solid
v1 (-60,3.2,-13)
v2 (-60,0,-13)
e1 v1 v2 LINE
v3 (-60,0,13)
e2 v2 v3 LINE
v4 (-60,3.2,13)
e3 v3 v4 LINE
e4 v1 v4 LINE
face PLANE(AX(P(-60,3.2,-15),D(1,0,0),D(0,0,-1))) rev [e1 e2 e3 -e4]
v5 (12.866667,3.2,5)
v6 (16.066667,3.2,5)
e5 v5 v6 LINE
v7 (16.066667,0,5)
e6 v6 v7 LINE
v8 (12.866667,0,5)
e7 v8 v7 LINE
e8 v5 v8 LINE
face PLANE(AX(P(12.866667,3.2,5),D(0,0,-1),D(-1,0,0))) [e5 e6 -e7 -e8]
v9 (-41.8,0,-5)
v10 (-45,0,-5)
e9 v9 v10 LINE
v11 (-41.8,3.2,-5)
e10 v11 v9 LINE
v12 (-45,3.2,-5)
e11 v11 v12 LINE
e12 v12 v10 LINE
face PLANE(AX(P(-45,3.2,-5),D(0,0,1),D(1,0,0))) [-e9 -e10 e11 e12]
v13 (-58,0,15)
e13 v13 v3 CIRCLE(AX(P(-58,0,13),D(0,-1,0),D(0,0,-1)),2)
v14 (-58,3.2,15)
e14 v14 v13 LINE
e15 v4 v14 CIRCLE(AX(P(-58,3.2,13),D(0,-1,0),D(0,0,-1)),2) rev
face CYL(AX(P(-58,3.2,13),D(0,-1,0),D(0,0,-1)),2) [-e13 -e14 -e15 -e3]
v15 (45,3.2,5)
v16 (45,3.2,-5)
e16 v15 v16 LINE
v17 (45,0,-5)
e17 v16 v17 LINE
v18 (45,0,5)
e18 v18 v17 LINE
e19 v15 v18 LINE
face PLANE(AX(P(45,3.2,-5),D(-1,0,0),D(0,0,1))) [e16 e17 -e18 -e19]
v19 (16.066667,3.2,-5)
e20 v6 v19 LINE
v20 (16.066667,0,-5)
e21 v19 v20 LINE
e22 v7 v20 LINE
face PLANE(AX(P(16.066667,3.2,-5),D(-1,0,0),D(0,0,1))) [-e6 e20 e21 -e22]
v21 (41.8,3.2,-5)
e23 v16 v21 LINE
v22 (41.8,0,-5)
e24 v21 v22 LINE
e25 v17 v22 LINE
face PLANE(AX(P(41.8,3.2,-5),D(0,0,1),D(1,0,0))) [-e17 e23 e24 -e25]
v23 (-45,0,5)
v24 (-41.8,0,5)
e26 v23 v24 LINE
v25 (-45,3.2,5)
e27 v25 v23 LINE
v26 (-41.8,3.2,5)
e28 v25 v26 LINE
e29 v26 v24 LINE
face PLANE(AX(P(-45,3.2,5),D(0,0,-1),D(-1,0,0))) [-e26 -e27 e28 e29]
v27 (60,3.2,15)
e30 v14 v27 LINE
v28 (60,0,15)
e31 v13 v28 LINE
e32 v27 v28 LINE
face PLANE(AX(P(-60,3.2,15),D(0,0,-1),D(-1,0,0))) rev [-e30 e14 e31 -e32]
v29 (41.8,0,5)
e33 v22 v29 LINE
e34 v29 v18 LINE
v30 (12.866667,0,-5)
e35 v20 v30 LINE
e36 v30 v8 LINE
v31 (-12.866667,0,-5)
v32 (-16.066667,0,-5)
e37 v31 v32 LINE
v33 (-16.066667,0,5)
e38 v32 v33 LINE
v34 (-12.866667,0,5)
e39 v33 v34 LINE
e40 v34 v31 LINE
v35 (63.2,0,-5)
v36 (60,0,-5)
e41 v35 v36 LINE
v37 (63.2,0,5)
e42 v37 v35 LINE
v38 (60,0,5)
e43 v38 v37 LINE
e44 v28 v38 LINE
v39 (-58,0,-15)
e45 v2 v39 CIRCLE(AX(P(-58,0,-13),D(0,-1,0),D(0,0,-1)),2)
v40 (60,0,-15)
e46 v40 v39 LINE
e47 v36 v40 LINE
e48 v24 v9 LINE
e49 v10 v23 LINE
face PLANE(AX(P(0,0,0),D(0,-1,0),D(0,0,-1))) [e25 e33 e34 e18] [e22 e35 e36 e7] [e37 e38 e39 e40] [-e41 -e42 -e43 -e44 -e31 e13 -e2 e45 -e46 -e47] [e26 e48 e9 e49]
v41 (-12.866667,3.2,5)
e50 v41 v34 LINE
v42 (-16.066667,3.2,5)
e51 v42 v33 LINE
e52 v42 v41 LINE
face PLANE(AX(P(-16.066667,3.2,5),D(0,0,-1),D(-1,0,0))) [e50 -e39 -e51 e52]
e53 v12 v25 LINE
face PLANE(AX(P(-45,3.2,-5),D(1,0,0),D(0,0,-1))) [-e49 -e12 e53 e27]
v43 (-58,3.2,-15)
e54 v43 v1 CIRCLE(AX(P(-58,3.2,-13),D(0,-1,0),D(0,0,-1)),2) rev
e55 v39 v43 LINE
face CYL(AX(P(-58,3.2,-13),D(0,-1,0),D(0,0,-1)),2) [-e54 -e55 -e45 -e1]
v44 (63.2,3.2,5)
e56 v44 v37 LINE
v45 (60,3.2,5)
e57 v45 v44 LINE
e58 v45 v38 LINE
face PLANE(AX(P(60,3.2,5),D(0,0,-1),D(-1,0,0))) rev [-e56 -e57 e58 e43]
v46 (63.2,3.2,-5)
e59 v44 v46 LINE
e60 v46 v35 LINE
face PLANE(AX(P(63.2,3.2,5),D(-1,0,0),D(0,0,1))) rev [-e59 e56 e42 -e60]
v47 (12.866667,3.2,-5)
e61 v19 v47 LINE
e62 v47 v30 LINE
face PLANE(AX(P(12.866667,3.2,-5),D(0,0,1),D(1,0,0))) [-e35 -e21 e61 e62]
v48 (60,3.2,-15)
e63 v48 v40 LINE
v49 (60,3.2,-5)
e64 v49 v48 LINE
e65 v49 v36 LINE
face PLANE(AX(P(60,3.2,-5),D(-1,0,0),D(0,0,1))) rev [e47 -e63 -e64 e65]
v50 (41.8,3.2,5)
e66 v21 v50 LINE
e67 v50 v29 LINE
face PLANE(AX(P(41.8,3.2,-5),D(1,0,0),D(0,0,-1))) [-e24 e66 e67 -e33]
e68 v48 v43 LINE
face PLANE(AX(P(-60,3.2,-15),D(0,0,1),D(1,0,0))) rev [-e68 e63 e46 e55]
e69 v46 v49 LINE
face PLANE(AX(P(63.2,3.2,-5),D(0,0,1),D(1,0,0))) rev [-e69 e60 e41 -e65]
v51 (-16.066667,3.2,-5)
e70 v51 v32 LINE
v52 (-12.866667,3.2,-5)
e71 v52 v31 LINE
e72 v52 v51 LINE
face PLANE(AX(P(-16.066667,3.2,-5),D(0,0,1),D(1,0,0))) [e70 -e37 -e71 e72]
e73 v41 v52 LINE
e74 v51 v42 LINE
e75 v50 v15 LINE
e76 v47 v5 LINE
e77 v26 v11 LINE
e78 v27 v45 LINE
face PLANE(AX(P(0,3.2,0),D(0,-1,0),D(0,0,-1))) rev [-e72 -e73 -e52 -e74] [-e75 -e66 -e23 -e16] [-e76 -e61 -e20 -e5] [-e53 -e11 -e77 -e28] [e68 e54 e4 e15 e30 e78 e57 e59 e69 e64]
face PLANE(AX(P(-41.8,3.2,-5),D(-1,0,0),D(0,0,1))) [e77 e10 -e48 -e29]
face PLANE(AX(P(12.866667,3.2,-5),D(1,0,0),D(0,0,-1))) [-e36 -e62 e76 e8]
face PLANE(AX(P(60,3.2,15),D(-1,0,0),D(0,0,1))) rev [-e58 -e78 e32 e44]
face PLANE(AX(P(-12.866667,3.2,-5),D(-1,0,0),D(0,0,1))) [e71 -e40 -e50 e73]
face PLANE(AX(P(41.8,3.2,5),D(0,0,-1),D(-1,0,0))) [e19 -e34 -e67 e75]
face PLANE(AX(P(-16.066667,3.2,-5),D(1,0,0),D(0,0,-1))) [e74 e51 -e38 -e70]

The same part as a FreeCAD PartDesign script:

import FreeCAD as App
import Part
import Sketcher
Q = App.Units.Quantity


def edges_at(feature, points):
    """Names of the edges that pass closest to the given points."""
    edges = feature.Shape.Edges
    near = lambda p: min(range(len(edges)), key=lambda i: edges[i].distToShape(Part.Vertex(*p))[0])
    return sorted({f"Edge{near(p) + 1}" for p in points})

doc = App.newDocument("Part")
params = doc.addObject("Spreadsheet::Sheet", "Params")
for row, (alias, value) in enumerate([
    ("sketch1_width", "120 mm"),
    ("sketch1_height", "30 mm"),
    ("sketch1_width2", "3.2 mm"),
    ("pad1_length", "3.2 mm"),
    ("fillet_radius", "2 mm"),
], start=1):
    params.set(f"A{row}", alias)
    params.set(f"B{row}", "=" + value)
    params.setAlias(f"B{row}", alias)

body = doc.addObject("PartDesign::Body", "Body")

# Sketch on XZ plane
sketch1 = doc.addObject("Sketcher::SketchObject", "Sketch")
body.addObject(sketch1)
sketch1.AttachmentSupport = (doc.XZ_Plane, [""])
sketch1.MapMode = "FlatFace"
sketch1.addGeometry([
    Part.LineSegment(App.Vector(60, -15, 0), App.Vector(-60, -15, 0)),  # 0
    Part.LineSegment(App.Vector(-60, -15, 0), App.Vector(-60, 15, 0)),  # 1
    Part.LineSegment(App.Vector(-60, 15, 0), App.Vector(60, 15, 0)),  # 2
    Part.LineSegment(App.Vector(60, 15, 0), App.Vector(60, 5, 0)),  # 3
    Part.LineSegment(App.Vector(60, 5, 0), App.Vector(63.2, 5, 0)),  # 4
    Part.LineSegment(App.Vector(63.2, 5, 0), App.Vector(63.2, -5, 0)),  # 5
    Part.LineSegment(App.Vector(63.2, -5, 0), App.Vector(60, -5, 0)),  # 6
    Part.LineSegment(App.Vector(60, -5, 0), App.Vector(60, -15, 0)),  # 7
    Part.LineSegment(App.Vector(41.8, 5, 0), App.Vector(41.8, -5, 0)),  # 8
    Part.LineSegment(App.Vector(41.8, -5, 0), App.Vector(45, -5, 0)),  # 9
    Part.LineSegment(App.Vector(45, -5, 0), App.Vector(45, 5, 0)),  # 10
    Part.LineSegment(App.Vector(45, 5, 0), App.Vector(41.8, 5, 0)),  # 11
    Part.LineSegment(App.Vector(12.866667, 5, 0), App.Vector(12.866667, -5, 0)),  # 12
    Part.LineSegment(App.Vector(12.866667, -5, 0), App.Vector(16.066667, -5, 0)),  # 13
    Part.LineSegment(App.Vector(16.066667, -5, 0), App.Vector(16.066667, 5, 0)),  # 14
    Part.LineSegment(App.Vector(16.066667, 5, 0), App.Vector(12.866667, 5, 0)),  # 15
    Part.LineSegment(App.Vector(-16.066667, 5, 0), App.Vector(-16.066667, -5, 0)),  # 16
    Part.LineSegment(App.Vector(-16.066667, -5, 0), App.Vector(-12.866667, -5, 0)),  # 17
    Part.LineSegment(App.Vector(-12.866667, -5, 0), App.Vector(-12.866667, 5, 0)),  # 18
    Part.LineSegment(App.Vector(-12.866667, 5, 0), App.Vector(-16.066667, 5, 0)),  # 19
    Part.LineSegment(App.Vector(-45, 5, 0), App.Vector(-45, -5, 0)),  # 20
    Part.LineSegment(App.Vector(-45, -5, 0), App.Vector(-41.8, -5, 0)),  # 21
    Part.LineSegment(App.Vector(-41.8, -5, 0), App.Vector(-41.8, 5, 0)),  # 22
    Part.LineSegment(App.Vector(-41.8, 5, 0), App.Vector(-45, 5, 0)),  # 23
], False)
sketch1.addConstraint([
    Sketcher.Constraint("Coincident", 0, 2, 1, 1),
    Sketcher.Constraint("Coincident", 1, 2, 2, 1),
    Sketcher.Constraint("Coincident", 2, 2, 3, 1),
    Sketcher.Constraint("Coincident", 3, 2, 4, 1),
    Sketcher.Constraint("Coincident", 4, 2, 5, 1),
    Sketcher.Constraint("Coincident", 5, 2, 6, 1),
    Sketcher.Constraint("Coincident", 6, 2, 7, 1),
    Sketcher.Constraint("Coincident", 7, 2, 0, 1),
    Sketcher.Constraint("Coincident", 8, 2, 9, 1),
    Sketcher.Constraint("Coincident", 9, 2, 10, 1),
    Sketcher.Constraint("Coincident", 10, 2, 11, 1),
    Sketcher.Constraint("Coincident", 11, 2, 8, 1),
    Sketcher.Constraint("Coincident", 12, 2, 13, 1),
    Sketcher.Constraint("Coincident", 13, 2, 14, 1),
    Sketcher.Constraint("Coincident", 14, 2, 15, 1),
    Sketcher.Constraint("Coincident", 15, 2, 12, 1),
    Sketcher.Constraint("Coincident", 16, 2, 17, 1),
    Sketcher.Constraint("Coincident", 17, 2, 18, 1),
    Sketcher.Constraint("Coincident", 18, 2, 19, 1),
    Sketcher.Constraint("Coincident", 19, 2, 16, 1),
    Sketcher.Constraint("Coincident", 20, 2, 21, 1),
    Sketcher.Constraint("Coincident", 21, 2, 22, 1),
    Sketcher.Constraint("Coincident", 22, 2, 23, 1),
    Sketcher.Constraint("Coincident", 23, 2, 20, 1),
    Sketcher.Constraint("Horizontal", 0),
    Sketcher.Constraint("Vertical", 1),
    Sketcher.Constraint("Horizontal", 2),
    Sketcher.Constraint("Vertical", 3),
    Sketcher.Constraint("Horizontal", 4),
    Sketcher.Constraint("Vertical", 5),
    Sketcher.Constraint("Horizontal", 6),
    Sketcher.Constraint("Vertical", 7),
    Sketcher.Constraint("Vertical", 8),
    Sketcher.Constraint("Horizontal", 9),
    Sketcher.Constraint("Vertical", 10),
    Sketcher.Constraint("Horizontal", 11),
    Sketcher.Constraint("Vertical", 12),
    Sketcher.Constraint("Horizontal", 13),
    Sketcher.Constraint("Vertical", 14),
    Sketcher.Constraint("Horizontal", 15),
    Sketcher.Constraint("Vertical", 16),
    Sketcher.Constraint("Horizontal", 17),
    Sketcher.Constraint("Vertical", 18),
    Sketcher.Constraint("Horizontal", 19),
    Sketcher.Constraint("Vertical", 20),
    Sketcher.Constraint("Horizontal", 21),
    Sketcher.Constraint("Vertical", 22),
    Sketcher.Constraint("Horizontal", 23),
    Sketcher.Constraint("Symmetric", 0, 2, 2, 2, -1, 1),
    Sketcher.Constraint("Symmetric", 14, 2, 16, 2, -1, 1),
    Sketcher.Constraint("Symmetric", 12, 2, 18, 2, -1, 1),
    Sketcher.Constraint("Symmetric", 10, 2, 20, 2, -1, 1),
    Sketcher.Constraint("Symmetric", 8, 2, 22, 2, -1, 1),
    Sketcher.Constraint("Symmetric", 3, 2, 6, 2, -1),
    Sketcher.Constraint("Horizontal", 6, 2, 8, 2),
    Sketcher.Constraint("Horizontal", 4, 2, 10, 2),
    Sketcher.Constraint("Horizontal", 9, 2, 12, 2),
    Sketcher.Constraint("Horizontal", 11, 2, 14, 2),
    Sketcher.Constraint("Equal", 6, 9),
    Sketcher.Constraint("Equal", 11, 13),
    Sketcher.Constraint("Equal", 3, 5),
    Sketcher.Constraint("DistanceX", 0, 2, 0, 1, Q("120 mm")),
    Sketcher.Constraint("DistanceY", 1, 1, 1, 2, Q("30 mm")),
    Sketcher.Constraint("DistanceX", 4, 1, 4, 2, Q("3.2 mm")),
    Sketcher.Constraint("DistanceX", -1, 1, 9, 2, Q("45 mm")),
    Sketcher.Constraint("DistanceX", -1, 1, 12, 2, Q("12.866667 mm")),
])
sketch1.setExpression("Constraints[61]", "Params.sketch1_width")
sketch1.setExpression("Constraints[62]", "Params.sketch1_height")
sketch1.setExpression("Constraints[63]", "Params.sketch1_width2")
pad1 = doc.addObject("PartDesign::Pad", "Pad")
body.addObject(pad1)
pad1.Profile = sketch1
pad1.setExpression("Length", "Params.pad1_length")
pad1.Reversed = True
doc.recompute()

fillet = doc.addObject("PartDesign::Fillet", "Fillet")
body.addObject(fillet)
fillet.Base = (pad1, edges_at(pad1, [(-60, 1.6, 15), (-60, 1.6, -15)]))
fillet.setExpression("Radius", "Params.fillet_radius")

doc.recompute()
